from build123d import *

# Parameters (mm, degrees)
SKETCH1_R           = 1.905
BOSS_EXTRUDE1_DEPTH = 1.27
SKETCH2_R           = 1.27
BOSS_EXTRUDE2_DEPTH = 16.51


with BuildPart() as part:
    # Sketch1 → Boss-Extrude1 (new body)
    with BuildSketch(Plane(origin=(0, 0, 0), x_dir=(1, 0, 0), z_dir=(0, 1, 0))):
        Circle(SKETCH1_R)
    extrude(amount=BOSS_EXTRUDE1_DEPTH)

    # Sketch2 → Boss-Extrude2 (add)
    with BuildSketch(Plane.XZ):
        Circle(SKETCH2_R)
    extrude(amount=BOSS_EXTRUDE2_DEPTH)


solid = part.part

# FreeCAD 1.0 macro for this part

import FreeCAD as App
import Part
import Sketcher
from FreeCAD import Vector
Q = App.Units.Quantity

doc = App.newDocument("Part")
body = doc.addObject("PartDesign::Body", "Body")

# Sketch on XZ plane
sketch1 = body.newObject("Sketcher::SketchObject", "Sketch")
sketch1.AttachmentSupport = (doc.getObject("XZ_Plane"), [""])
sketch1.MapMode = "FlatFace"
sketch1.addGeometry(Part.Circle(Vector(0, 0, 0), Vector(0, 0, 1), 1.9), False)
sketch1.addConstraint([
    Sketcher.Constraint("Coincident", 0, 3, -1, 1),
    Sketcher.Constraint("Diameter", 0, Q("0.15 in")),
])
pad1 = body.newObject("PartDesign::Pad", "Pad")
pad1.Profile = sketch1
pad1.Length = Q("0.05 in")
pad1.Reversed = True

# Sketch on XZ plane
sketch2 = body.newObject("Sketcher::SketchObject", "Sketch001")
sketch2.AttachmentSupport = (doc.getObject("XZ_Plane"), [""])
sketch2.MapMode = "FlatFace"
sketch2.addGeometry(Part.Circle(Vector(0, 0, 0), Vector(0, 0, 1), 1.3), False)
sketch2.addConstraint([
    Sketcher.Constraint("Coincident", 0, 3, -1, 1),
    Sketcher.Constraint("Diameter", 0, Q("0.1 in")),
])
pad2 = body.newObject("PartDesign::Pad", "Pad001")
pad2.Profile = sketch2
pad2.Length = Q("0.65 in")

doc.recompute()
